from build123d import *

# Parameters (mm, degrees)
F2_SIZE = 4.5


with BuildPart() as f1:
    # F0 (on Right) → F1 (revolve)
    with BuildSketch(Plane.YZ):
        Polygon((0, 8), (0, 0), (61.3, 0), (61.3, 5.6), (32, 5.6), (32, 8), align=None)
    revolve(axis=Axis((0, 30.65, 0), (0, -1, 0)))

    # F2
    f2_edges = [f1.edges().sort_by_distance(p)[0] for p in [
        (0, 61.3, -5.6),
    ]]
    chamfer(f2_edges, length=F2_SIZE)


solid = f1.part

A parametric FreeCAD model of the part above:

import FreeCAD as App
import Part
import Sketcher

V = App.Vector


def edges_at(feature, points):
    """Names of the edges that pass closest to the given points."""
    edges = feature.Shape.Edges
    near = lambda p: min(range(len(edges)), key=lambda i: edges[i].distToShape(Part.Vertex(*p))[0])
    return sorted({f"Edge{near(p) + 1}" for p in points})

doc = App.newDocument("Part")
body = doc.addObject("PartDesign::Body", "Body")

# Sketch on YZ plane
sketch1 = body.newObject("Sketcher::SketchObject", "Sketch")
sketch1.AttachmentSupport = (doc.getObject("YZ_Plane"), [""])
sketch1.MapMode = "FlatFace"
sketch1.addGeometry(Part.LineSegment(V(0, 8, 0), V(0, 0, 0)), False)
sketch1.addGeometry(Part.LineSegment(V(0, 0, 0), V(61.3, 0, 0)), False)
sketch1.addGeometry(Part.LineSegment(V(61.3, 0, 0), V(61.3, 5.6, 0)), False)
sketch1.addGeometry(Part.LineSegment(V(61.3, 5.6, 0), V(32, 5.6, 0)), False)
sketch1.addGeometry(Part.LineSegment(V(32, 5.6, 0), V(32, 8, 0)), False)
sketch1.addGeometry(Part.LineSegment(V(32, 8, 0), V(0, 8, 0)), False)
sketch1.addConstraint(Sketcher.Constraint("Coincident", 0, 2, 1, 1))
sketch1.addConstraint(Sketcher.Constraint("Coincident", 1, 2, 2, 1))
sketch1.addConstraint(Sketcher.Constraint("Coincident", 2, 2, 3, 1))
sketch1.addConstraint(Sketcher.Constraint("Coincident", 3, 2, 4, 1))
sketch1.addConstraint(Sketcher.Constraint("Coincident", 4, 2, 5, 1))
sketch1.addConstraint(Sketcher.Constraint("Coincident", 5, 2, 0, 1))
sketch1.addConstraint(Sketcher.Constraint("Vertical", 0))
sketch1.addConstraint(Sketcher.Constraint("Horizontal", 1))
sketch1.addConstraint(Sketcher.Constraint("Vertical", 2))
sketch1.addConstraint(Sketcher.Constraint("Horizontal", 3))
sketch1.addConstraint(Sketcher.Constraint("Vertical", 4))
sketch1.addConstraint(Sketcher.Constraint("Horizontal", 5))
sketch1.addConstraint(Sketcher.Constraint("Coincident", 0, 2, -1, 1))
sketch1.addConstraint(Sketcher.Constraint("DistanceX", 5, 2, 5, 1, 32.0))
sketch1.addConstraint(Sketcher.Constraint("DistanceY", 0, 2, 0, 1, 8.0))
sketch1.addConstraint(Sketcher.Constraint("DistanceX", 1, 1, 1, 2, 61.3))
sketch1.addConstraint(Sketcher.Constraint("DistanceY", 2, 1, 2, 2, 5.6))
revolution = body.newObject("PartDesign::Revolution", "Revolution")
revolution.Profile = sketch1
revolution.ReferenceAxis = (sketch1, ["H_Axis"])
revolution.Angle = 360
doc.recompute()

chamfer = body.newObject("PartDesign::Chamfer", "Chamfer")
chamfer.Base = (revolution, edges_at(revolution, [(0, 61.3, -5.6)]))
chamfer.Size = 4.5

doc.recompute()
